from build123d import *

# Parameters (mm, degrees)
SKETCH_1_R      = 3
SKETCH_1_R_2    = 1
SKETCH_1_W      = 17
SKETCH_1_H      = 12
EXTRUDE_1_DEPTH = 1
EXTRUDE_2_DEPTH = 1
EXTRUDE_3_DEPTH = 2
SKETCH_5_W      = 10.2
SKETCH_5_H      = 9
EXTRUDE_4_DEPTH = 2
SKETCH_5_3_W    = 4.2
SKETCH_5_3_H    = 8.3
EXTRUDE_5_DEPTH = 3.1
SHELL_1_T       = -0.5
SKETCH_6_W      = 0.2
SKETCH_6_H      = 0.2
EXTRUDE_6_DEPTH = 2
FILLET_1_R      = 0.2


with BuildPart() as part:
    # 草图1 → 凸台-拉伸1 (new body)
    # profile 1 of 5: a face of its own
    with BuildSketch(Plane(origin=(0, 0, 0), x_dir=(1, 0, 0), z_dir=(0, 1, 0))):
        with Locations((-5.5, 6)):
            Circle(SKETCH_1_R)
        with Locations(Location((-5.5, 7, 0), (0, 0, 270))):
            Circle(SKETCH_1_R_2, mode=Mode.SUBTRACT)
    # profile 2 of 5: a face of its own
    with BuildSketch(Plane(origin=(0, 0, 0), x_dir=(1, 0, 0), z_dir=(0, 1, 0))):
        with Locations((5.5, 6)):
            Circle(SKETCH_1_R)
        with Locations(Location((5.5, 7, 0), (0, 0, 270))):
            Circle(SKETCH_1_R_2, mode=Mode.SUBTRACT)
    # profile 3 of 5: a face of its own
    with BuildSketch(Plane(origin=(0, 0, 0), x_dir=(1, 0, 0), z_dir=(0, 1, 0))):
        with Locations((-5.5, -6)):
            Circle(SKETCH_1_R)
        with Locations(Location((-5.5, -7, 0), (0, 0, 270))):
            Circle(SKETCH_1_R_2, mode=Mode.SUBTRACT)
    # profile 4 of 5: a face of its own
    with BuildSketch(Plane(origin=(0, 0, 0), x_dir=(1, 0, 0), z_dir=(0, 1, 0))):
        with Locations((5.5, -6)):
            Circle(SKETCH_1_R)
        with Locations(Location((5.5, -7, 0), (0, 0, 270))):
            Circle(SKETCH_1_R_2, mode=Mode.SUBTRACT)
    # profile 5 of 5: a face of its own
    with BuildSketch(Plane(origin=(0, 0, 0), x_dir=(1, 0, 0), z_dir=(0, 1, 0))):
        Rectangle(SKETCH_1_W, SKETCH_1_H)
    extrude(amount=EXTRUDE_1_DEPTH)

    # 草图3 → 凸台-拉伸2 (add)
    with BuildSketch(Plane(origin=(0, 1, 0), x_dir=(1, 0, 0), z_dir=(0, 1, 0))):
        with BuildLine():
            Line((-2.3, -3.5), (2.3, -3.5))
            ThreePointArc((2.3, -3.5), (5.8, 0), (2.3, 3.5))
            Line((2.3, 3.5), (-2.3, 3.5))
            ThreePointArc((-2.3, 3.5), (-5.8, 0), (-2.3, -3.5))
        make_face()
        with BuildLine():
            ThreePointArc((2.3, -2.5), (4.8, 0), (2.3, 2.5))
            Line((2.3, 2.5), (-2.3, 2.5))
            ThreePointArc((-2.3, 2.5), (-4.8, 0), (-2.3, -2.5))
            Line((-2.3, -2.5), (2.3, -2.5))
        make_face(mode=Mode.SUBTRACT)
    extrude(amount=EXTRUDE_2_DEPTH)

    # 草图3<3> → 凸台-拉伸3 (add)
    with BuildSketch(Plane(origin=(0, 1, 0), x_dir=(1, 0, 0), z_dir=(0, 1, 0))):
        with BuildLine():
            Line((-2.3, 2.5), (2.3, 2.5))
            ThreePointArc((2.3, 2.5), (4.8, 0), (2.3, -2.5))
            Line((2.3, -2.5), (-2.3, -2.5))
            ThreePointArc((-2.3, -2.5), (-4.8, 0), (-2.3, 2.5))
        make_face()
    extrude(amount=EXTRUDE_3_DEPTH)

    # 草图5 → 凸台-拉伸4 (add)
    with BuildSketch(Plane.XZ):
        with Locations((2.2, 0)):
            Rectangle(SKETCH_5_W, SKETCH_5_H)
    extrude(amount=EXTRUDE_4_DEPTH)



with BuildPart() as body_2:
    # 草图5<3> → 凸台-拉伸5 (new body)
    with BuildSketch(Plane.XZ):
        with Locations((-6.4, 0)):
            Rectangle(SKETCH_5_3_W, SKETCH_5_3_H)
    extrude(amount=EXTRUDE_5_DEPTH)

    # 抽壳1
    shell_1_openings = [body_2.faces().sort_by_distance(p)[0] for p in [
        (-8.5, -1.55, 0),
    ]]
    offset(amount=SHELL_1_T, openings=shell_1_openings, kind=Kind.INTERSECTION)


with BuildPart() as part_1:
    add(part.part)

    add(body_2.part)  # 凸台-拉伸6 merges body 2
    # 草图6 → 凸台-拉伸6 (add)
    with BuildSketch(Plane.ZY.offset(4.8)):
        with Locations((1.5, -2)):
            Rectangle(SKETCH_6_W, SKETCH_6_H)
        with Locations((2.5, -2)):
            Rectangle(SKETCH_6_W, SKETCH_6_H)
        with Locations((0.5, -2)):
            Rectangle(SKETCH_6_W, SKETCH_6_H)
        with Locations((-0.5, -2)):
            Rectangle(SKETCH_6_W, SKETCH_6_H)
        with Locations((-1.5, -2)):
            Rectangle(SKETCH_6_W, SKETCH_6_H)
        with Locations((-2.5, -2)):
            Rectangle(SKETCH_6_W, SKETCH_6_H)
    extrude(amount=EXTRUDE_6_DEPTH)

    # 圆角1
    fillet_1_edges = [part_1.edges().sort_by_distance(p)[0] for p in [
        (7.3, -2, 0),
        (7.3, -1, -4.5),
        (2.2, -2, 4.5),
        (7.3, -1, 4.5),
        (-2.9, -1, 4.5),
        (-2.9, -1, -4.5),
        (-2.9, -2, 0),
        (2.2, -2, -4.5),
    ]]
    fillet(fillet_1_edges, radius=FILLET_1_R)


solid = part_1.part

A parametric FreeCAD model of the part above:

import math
import FreeCAD as App
import Part
import Sketcher


def edges_at(feature, points):
    """Names of the edges that pass closest to the given points."""
    edges = feature.Shape.Edges
    near = lambda p: min(range(len(edges)), key=lambda i: edges[i].distToShape(Part.Vertex(*p))[0])
    return sorted({f"Edge{near(p) + 1}" for p in points})


def faces_at(feature, points):
    """Names of the faces that lie closest to the given points."""
    faces = feature.Shape.Faces
    near = lambda p: min(range(len(faces)), key=lambda i: faces[i].distToShape(Part.Vertex(*p))[0])
    return sorted({f"Face{near(p) + 1}" for p in points})


def add_polygon(sketch, points):
    """Adds a closed chain of lines whose ends are joined by coincident constraints."""
    first, n = sketch.GeometryCount, len(points)
    for a, b in zip(points, points[1:] + points[:1]):
        sketch.addGeometry(Part.LineSegment(App.Vector(*a, 0), App.Vector(*b, 0)), False)
    for i in range(n):
        sketch.addConstraint(Sketcher.Constraint("Coincident", first + i, 2, first + (i + 1) % n, 1))

doc = App.newDocument("Part")
params = doc.addObject("Spreadsheet::Sheet", "Params")
for row, (alias, value) in enumerate([
    ("sketch1_diameter", "2 mm"),
    ("sketch1_radius", "3 mm"),
    ("sketch1_width", "5 mm"),
    ("sketch1_height", "12 mm"),
    ("pad1_length", "1 mm"),
    ("sketch2_radius", "3.5 mm"),
    ("sketch2_radius2", "2.5 mm"),
    ("sketch2_width", "4.6 mm"),
    ("pad2_length", "1 mm"),
    ("sketch3_radius", "2.5 mm"),
    ("sketch3_width", "4.6 mm"),
    ("pad3_length", "2 mm"),
    ("sketch4_height", "9 mm"),
    ("sketch4_width", "10.2 mm"),
    ("pad4_length", "2 mm"),
    ("sketch5_width", "4.2 mm"),
    ("sketch5_height", "8.3 mm"),
    ("pad5_length", "3.1 mm"),
    ("thickness_wall", "0.5 mm"),
    ("sketch6_width", "0.2 mm"),
    ("pad6_length", "2 mm"),
    ("fillet_radius", "0.2 mm"),
], start=1):
    params.set(f"A{row}", alias)
    params.set(f"B{row}", "=" + value)
    params.setAlias(f"B{row}", alias)

body = doc.addObject("PartDesign::Body", "Body")

# Sketch on XZ plane
sketch1 = body.newObject("Sketcher::SketchObject", "Sketch")
sketch1.AttachmentSupport = (doc.getObject("XZ_Plane"), [""])
sketch1.MapMode = "FlatFace"
sketch1.addGeometry([
    Part.ArcOfCircle(Part.Circle(App.Vector(-5.5, -6, 0), App.Vector(0, 0, 1), 3), math.radians(180), math.radians(360)),  # 0
    Part.LineSegment(App.Vector(-8.5, -6, 0), App.Vector(-8.5, 6, 0)),  # 1
    Part.ArcOfCircle(Part.Circle(App.Vector(-5.5, 6, 0), App.Vector(0, 0, 1), 3), math.radians(0), math.radians(180)),  # 2
    Part.LineSegment(App.Vector(-2.5, 6, 0), App.Vector(2.5, 6, 0)),  # 3
    Part.ArcOfCircle(Part.Circle(App.Vector(5.5, 6, 0), App.Vector(0, 0, 1), 3), math.radians(0), math.radians(180)),  # 4
    Part.LineSegment(App.Vector(8.5, 6, 0), App.Vector(8.5, -6, 0)),  # 5
    Part.ArcOfCircle(Part.Circle(App.Vector(5.5, -6, 0), App.Vector(0, 0, 1), 3), math.radians(180), math.radians(360)),  # 6
    Part.LineSegment(App.Vector(2.5, -6, 0), App.Vector(-2.5, -6, 0)),  # 7
    Part.Circle(App.Vector(-5.5, -7, 0), App.Vector(0, 0, 1), 1),  # 8
    Part.Circle(App.Vector(-5.5, 7, 0), App.Vector(0, 0, 1), 1),  # 9
    Part.Circle(App.Vector(5.5, -7, 0), App.Vector(0, 0, 1), 1),  # 10
    Part.Circle(App.Vector(5.5, 7, 0), App.Vector(0, 0, 1), 1),  # 11
], False)
sketch1.addConstraint([
    Sketcher.Constraint("Tangent", 0, 1, 1, 1),
    Sketcher.Constraint("Tangent", 1, 2, 2, 2),
    Sketcher.Constraint("Coincident", 2, 1, 3, 1),
    Sketcher.Constraint("Coincident", 3, 2, 4, 2),
    Sketcher.Constraint("Tangent", 4, 1, 5, 1),
    Sketcher.Constraint("Tangent", 5, 2, 6, 2),
    Sketcher.Constraint("Coincident", 6, 1, 7, 1),
    Sketcher.Constraint("Coincident", 7, 2, 0, 2),
    Sketcher.Constraint("Vertical", 1),
    Sketcher.Constraint("Horizontal", 3),
    Sketcher.Constraint("Vertical", 5),
    Sketcher.Constraint("Horizontal", 7),
    Sketcher.Constraint("Equal", 0, 2),
    Sketcher.Constraint("Equal", 2, 4),
    Sketcher.Constraint("Equal", 4, 6),
    Sketcher.Constraint("Equal", 8, 9),
    Sketcher.Constraint("Equal", 9, 10),
    Sketcher.Constraint("Equal", 10, 11),
    Sketcher.Constraint("Symmetric", 0, 3, 4, 3, -1, 1),
    Sketcher.Constraint("Symmetric", 9, 3, 10, 3, -1, 1),
    Sketcher.Constraint("Symmetric", 8, 3, 11, 3, -1, 1),
    Sketcher.Constraint("Symmetric", 8, 3, 10, 3, -2),
    Sketcher.Constraint("Horizontal", 2, 3, 4, 3),
    Sketcher.Constraint("Horizontal", 0, 3, 6, 3),
    Sketcher.Constraint("Horizontal", 1, 2, 2, 1),
    Sketcher.Constraint("Horizontal", 5, 2, 6, 1),
    Sketcher.Constraint("Vertical", 2, 3, 8, 3),
    Sketcher.Constraint("Diameter", 8, 2.0),
    Sketcher.Constraint("Radius", 0, 3.0),
    Sketcher.Constraint("DistanceX", 3, 1, 3, 2, 5.0),
    Sketcher.Constraint("DistanceY", 1, 1, 1, 2, 12.0),
    Sketcher.Constraint("DistanceY", 8, 3, -1, 1, 7.0),
])
sketch1.setExpression("Constraints[27]", "Params.sketch1_diameter")
sketch1.setExpression("Constraints[28]", "Params.sketch1_radius")
sketch1.setExpression("Constraints[29]", "Params.sketch1_width")
sketch1.setExpression("Constraints[30]", "Params.sketch1_height")
pad1 = body.newObject("PartDesign::Pad", "Pad")
pad1.Profile = sketch1
pad1.setExpression("Length", "Params.pad1_length")
pad1.Reversed = True

# Sketch on XZ plane
sketch2 = body.newObject("Sketcher::SketchObject", "Sketch001")
sketch2.AttachmentSupport = (doc.getObject("XZ_Plane"), [""])
sketch2.MapMode = "FlatFace"
sketch2.AttachmentOffset = App.Placement(App.Vector(0, 0, -1), App.Rotation())
sketch2.addGeometry([
    Part.LineSegment(App.Vector(-2.3, 3.5, 0), App.Vector(2.3, 3.5, 0)),  # 0
    Part.ArcOfCircle(Part.Circle(App.Vector(2.3, 0, 0), App.Vector(0, 0, 1), 3.5), math.radians(-90), math.radians(90)),  # 1
    Part.LineSegment(App.Vector(2.3, -3.5, 0), App.Vector(-2.3, -3.5, 0)),  # 2
    Part.ArcOfCircle(Part.Circle(App.Vector(-2.3, 0, 0), App.Vector(0, 0, 1), 3.5), math.radians(90), math.radians(270)),  # 3
    Part.ArcOfCircle(Part.Circle(App.Vector(2.3, 0, 0), App.Vector(0, 0, 1), 2.5), math.radians(-90), math.radians(90)),  # 4
    Part.LineSegment(App.Vector(2.3, 2.5, 0), App.Vector(-2.3, 2.5, 0)),  # 5
    Part.ArcOfCircle(Part.Circle(App.Vector(-2.3, 0, 0), App.Vector(0, 0, 1), 2.5), math.radians(90), math.radians(270)),  # 6
    Part.LineSegment(App.Vector(-2.3, -2.5, 0), App.Vector(2.3, -2.5, 0)),  # 7
], False)
sketch2.addConstraint([
    Sketcher.Constraint("Tangent", 0, 2, 1, 2),
    Sketcher.Constraint("Tangent", 1, 1, 2, 1),
    Sketcher.Constraint("Tangent", 2, 2, 3, 2),
    Sketcher.Constraint("Tangent", 3, 1, 0, 1),
    Sketcher.Constraint("Tangent", 4, 2, 5, 1),
    Sketcher.Constraint("Tangent", 5, 2, 6, 1),
    Sketcher.Constraint("Tangent", 6, 2, 7, 1),
    Sketcher.Constraint("Tangent", 7, 2, 4, 1),
    Sketcher.Constraint("Horizontal", 0),
    Sketcher.Constraint("Horizontal", 2),
    Sketcher.Constraint("Horizontal", 5),
    Sketcher.Constraint("Horizontal", 7),
    Sketcher.Constraint("Coincident", 4, 3, 1, 3),
    Sketcher.Constraint("Symmetric", 1, 3, 3, 3, -1, 1),
    Sketcher.Constraint("Vertical", 6, 3, 2, 2),
    Sketcher.Constraint("Radius", 1, 3.5),
    Sketcher.Constraint("Radius", 4, 2.5),
    Sketcher.Constraint("DistanceX", 0, 1, 0, 2, 4.6),
])
sketch2.setExpression("Constraints[15]", "Params.sketch2_radius")
sketch2.setExpression("Constraints[16]", "Params.sketch2_radius2")
sketch2.setExpression("Constraints[17]", "Params.sketch2_width")
pad2 = body.newObject("PartDesign::Pad", "Pad001")
pad2.Profile = sketch2
pad2.setExpression("Length", "Params.pad2_length")
pad2.Reversed = True

# Sketch on XZ plane
sketch3 = body.newObject("Sketcher::SketchObject", "Sketch002")
sketch3.AttachmentSupport = (doc.getObject("XZ_Plane"), [""])
sketch3.MapMode = "FlatFace"
sketch3.AttachmentOffset = App.Placement(App.Vector(0, 0, -1), App.Rotation())
sketch3.addGeometry([
    Part.LineSegment(App.Vector(2.3, -2.5, 0), App.Vector(-2.3, -2.5, 0)),
    Part.ArcOfCircle(Part.Circle(App.Vector(-2.3, 0, 0), App.Vector(0, 0, 1), 2.5), math.radians(90), math.radians(270)),
    Part.LineSegment(App.Vector(-2.3, 2.5, 0), App.Vector(2.3, 2.5, 0)),
    Part.ArcOfCircle(Part.Circle(App.Vector(2.3, 0, 0), App.Vector(0, 0, 1), 2.5), math.radians(-90), math.radians(90)),
], False)
sketch3.addConstraint([
    Sketcher.Constraint("Tangent", 0, 2, 1, 2),
    Sketcher.Constraint("Tangent", 1, 1, 2, 1),
    Sketcher.Constraint("Tangent", 2, 2, 3, 2),
    Sketcher.Constraint("Tangent", 3, 1, 0, 1),
    Sketcher.Constraint("Horizontal", 0),
    Sketcher.Constraint("Horizontal", 2),
    Sketcher.Constraint("Symmetric", 1, 3, 3, 3, -1, 1),
    Sketcher.Constraint("Radius", 1, 2.5),
    Sketcher.Constraint("DistanceX", 0, 2, 0, 1, 4.6),
])
sketch3.setExpression("Constraints[7]", "Params.sketch3_radius")
sketch3.setExpression("Constraints[8]", "Params.sketch3_width")
pad3 = body.newObject("PartDesign::Pad", "Pad002")
pad3.Profile = sketch3
pad3.setExpression("Length", "Params.pad3_length")
pad3.Reversed = True

# Sketch on XZ plane
sketch4 = body.newObject("Sketcher::SketchObject", "Sketch003")
sketch4.AttachmentSupport = (doc.getObject("XZ_Plane"), [""])
sketch4.MapMode = "FlatFace"
add_polygon(sketch4, [(-3, 4), (-3, -4), (7, -4), (7, 4)])  # lines 0-3
sketch4.addConstraint([
    Sketcher.Constraint("Vertical", 0),
    Sketcher.Constraint("Horizontal", 1),
    Sketcher.Constraint("Vertical", 2),
    Sketcher.Constraint("Horizontal", 3),
    Sketcher.Constraint("DistanceY", 0, 2, 0, 1, 9.0),
    Sketcher.Constraint("DistanceX", 1, 1, 1, 2, 10.2),
    Sketcher.Constraint("DistanceX", 0, 2, -1, 1, 2.9),
    Sketcher.Constraint("DistanceY", 0, 2, -1, 1, 4.5),
])
sketch4.setExpression("Constraints[8]", "Params.sketch4_height")
sketch4.setExpression("Constraints[9]", "Params.sketch4_width")
pad4 = body.newObject("PartDesign::Pad", "Pad003")
pad4.Profile = sketch4
pad4.setExpression("Length", "Params.pad4_length")
body2 = doc.addObject("PartDesign::Body", "Body001")

# Sketch on XZ plane
sketch5 = body2.newObject("Sketcher::SketchObject", "Sketch004")
sketch5.AttachmentSupport = (doc.getObject("XZ_Plane001"), [""])
sketch5.MapMode = "FlatFace"
add_polygon(sketch5, [(-8.5, 4.2), (-8.5, -4.2), (-4.3, -4.2), (-4.3, 4.2)])  # lines 0-3
sketch5.addConstraint([
    Sketcher.Constraint("Vertical", 0),
    Sketcher.Constraint("Horizontal", 1),
    Sketcher.Constraint("Vertical", 2),
    Sketcher.Constraint("Horizontal", 3),
    Sketcher.Constraint("DistanceX", 1, 1, 1, 2, 4.2),
    Sketcher.Constraint("DistanceY", 0, 2, 0, 1, 8.3),
    Sketcher.Constraint("DistanceX", 0, 2, -1, 1, 8.5),
    Sketcher.Constraint("DistanceY", 0, 2, -1, 1, 4.15),
])
sketch5.setExpression("Constraints[8]", "Params.sketch5_width")
sketch5.setExpression("Constraints[9]", "Params.sketch5_height")
pad5 = body2.newObject("PartDesign::Pad", "Pad004")
pad5.Profile = sketch5
pad5.setExpression("Length", "Params.pad5_length")
doc.recompute()

thickness = body2.newObject("PartDesign::Thickness", "Thickness")
thickness.Base = (pad5, faces_at(pad5, [(-8.5, -1.55, 0)]))
thickness.setExpression("Value", "Params.thickness_wall")
thickness.Reversed = True
thickness.Join = "Intersection"
doc.recompute()

boolean = body.newObject("PartDesign::Boolean", "Boolean")
boolean.Type = "Fuse"
boolean.addObjects([body2])

# Sketch on YZ plane
sketch6 = body.newObject("Sketcher::SketchObject", "Sketch005")
sketch6.AttachmentSupport = (doc.getObject("YZ_Plane"), [""])
sketch6.MapMode = "FlatFace"
sketch6.AttachmentOffset = App.Placement(App.Vector(0, 0, -4.8), App.Rotation())
add_polygon(sketch6, [(-1.9, 1.4), (-2.1, 1.4), (-2.1, 1.6), (-1.9, 1.6)])  # lines 0-3
add_polygon(sketch6, [(-1.9, 2.4), (-2.1, 2.4), (-2.1, 2.6), (-1.9, 2.6)])  # lines 4-7
add_polygon(sketch6, [(-1.9, 0.4), (-2.1, 0.4), (-2.1, 0.6), (-1.9, 0.6)])  # lines 8-11
add_polygon(sketch6, [(-1.9, -0.6), (-2.1, -0.6), (-2.1, -0.4), (-1.9, -0.4)])  # lines 12-15
add_polygon(sketch6, [(-1.9, -1.6), (-2.1, -1.6), (-2.1, -1.4), (-1.9, -1.4)])  # lines 16-19
add_polygon(sketch6, [(-1.9, -2.6), (-2.1, -2.6), (-2.1, -2.4), (-1.9, -2.4)])  # lines 20-23
sketch6.addConstraint([
    Sketcher.Constraint("Horizontal", 0),
    Sketcher.Constraint("Vertical", 1),
    Sketcher.Constraint("Horizontal", 2),
    Sketcher.Constraint("Vertical", 3),
    Sketcher.Constraint("Horizontal", 4),
    Sketcher.Constraint("Vertical", 5),
    Sketcher.Constraint("Horizontal", 6),
    Sketcher.Constraint("Vertical", 7),
    Sketcher.Constraint("Horizontal", 8),
    Sketcher.Constraint("Vertical", 9),
    Sketcher.Constraint("Horizontal", 10),
    Sketcher.Constraint("Vertical", 11),
    Sketcher.Constraint("Horizontal", 12),
    Sketcher.Constraint("Vertical", 13),
    Sketcher.Constraint("Horizontal", 14),
    Sketcher.Constraint("Vertical", 15),
    Sketcher.Constraint("Horizontal", 16),
    Sketcher.Constraint("Vertical", 17),
    Sketcher.Constraint("Horizontal", 18),
    Sketcher.Constraint("Vertical", 19),
    Sketcher.Constraint("Horizontal", 20),
    Sketcher.Constraint("Vertical", 21),
    Sketcher.Constraint("Horizontal", 22),
    Sketcher.Constraint("Vertical", 23),
    Sketcher.Constraint("Symmetric", 9, 2, 12, 2, -1),
    Sketcher.Constraint("Symmetric", 11, 2, 14, 2, -1),
    Sketcher.Constraint("Symmetric", 1, 2, 16, 2, -1),
    Sketcher.Constraint("Symmetric", 3, 2, 18, 2, -1),
    Sketcher.Constraint("Symmetric", 5, 2, 20, 2, -1),
    Sketcher.Constraint("Symmetric", 7, 2, 22, 2, -1),
    Sketcher.Constraint("Vertical", 1, 2, 4, 2),
    Sketcher.Constraint("Vertical", 3, 2, 6, 2),
    Sketcher.Constraint("Vertical", 5, 2, 8, 2),
    Sketcher.Constraint("Vertical", 7, 2, 10, 2),
    Sketcher.Constraint("Equal", 22, 1),
    Sketcher.Constraint("Equal", 3, 5),
    Sketcher.Constraint("Equal", 7, 9),
    Sketcher.Constraint("DistanceX", 0, 2, 0, 1, 0.2),
    Sketcher.Constraint("DistanceY", 0, 2, 4, 2, 1.0),
    Sketcher.Constraint("DistanceY", 8, 2, 0, 2, 1.0),
    Sketcher.Constraint("DistanceY", 12, 2, 8, 2, 1.0),
    Sketcher.Constraint("DistanceX", 0, 2, -1, 1, 2.1),
])
sketch6.setExpression("Constraints[61]", "Params.sketch6_width")
pad6 = body.newObject("PartDesign::Pad", "Pad005")
pad6.Profile = sketch6
pad6.setExpression("Length", "Params.pad6_length")
pad6.Reversed = True
doc.recompute()

fillet = body.newObject("PartDesign::Fillet", "Fillet")
fillet.Base = (pad6, edges_at(pad6, [
    (7.3, -2, 0),
    (7.3, -1, -4.5),
    (2.2, -2, 4.5),
    (7.3, -1, 4.5),
    (-2.9, -1, 4.5),
    (-2.9, -1, -4.5),
    (-2.9, -2, 0),
    (2.2, -2, -4.5),
]))
fillet.setExpression("Radius", "Params.fillet_radius")

doc.recompute()
